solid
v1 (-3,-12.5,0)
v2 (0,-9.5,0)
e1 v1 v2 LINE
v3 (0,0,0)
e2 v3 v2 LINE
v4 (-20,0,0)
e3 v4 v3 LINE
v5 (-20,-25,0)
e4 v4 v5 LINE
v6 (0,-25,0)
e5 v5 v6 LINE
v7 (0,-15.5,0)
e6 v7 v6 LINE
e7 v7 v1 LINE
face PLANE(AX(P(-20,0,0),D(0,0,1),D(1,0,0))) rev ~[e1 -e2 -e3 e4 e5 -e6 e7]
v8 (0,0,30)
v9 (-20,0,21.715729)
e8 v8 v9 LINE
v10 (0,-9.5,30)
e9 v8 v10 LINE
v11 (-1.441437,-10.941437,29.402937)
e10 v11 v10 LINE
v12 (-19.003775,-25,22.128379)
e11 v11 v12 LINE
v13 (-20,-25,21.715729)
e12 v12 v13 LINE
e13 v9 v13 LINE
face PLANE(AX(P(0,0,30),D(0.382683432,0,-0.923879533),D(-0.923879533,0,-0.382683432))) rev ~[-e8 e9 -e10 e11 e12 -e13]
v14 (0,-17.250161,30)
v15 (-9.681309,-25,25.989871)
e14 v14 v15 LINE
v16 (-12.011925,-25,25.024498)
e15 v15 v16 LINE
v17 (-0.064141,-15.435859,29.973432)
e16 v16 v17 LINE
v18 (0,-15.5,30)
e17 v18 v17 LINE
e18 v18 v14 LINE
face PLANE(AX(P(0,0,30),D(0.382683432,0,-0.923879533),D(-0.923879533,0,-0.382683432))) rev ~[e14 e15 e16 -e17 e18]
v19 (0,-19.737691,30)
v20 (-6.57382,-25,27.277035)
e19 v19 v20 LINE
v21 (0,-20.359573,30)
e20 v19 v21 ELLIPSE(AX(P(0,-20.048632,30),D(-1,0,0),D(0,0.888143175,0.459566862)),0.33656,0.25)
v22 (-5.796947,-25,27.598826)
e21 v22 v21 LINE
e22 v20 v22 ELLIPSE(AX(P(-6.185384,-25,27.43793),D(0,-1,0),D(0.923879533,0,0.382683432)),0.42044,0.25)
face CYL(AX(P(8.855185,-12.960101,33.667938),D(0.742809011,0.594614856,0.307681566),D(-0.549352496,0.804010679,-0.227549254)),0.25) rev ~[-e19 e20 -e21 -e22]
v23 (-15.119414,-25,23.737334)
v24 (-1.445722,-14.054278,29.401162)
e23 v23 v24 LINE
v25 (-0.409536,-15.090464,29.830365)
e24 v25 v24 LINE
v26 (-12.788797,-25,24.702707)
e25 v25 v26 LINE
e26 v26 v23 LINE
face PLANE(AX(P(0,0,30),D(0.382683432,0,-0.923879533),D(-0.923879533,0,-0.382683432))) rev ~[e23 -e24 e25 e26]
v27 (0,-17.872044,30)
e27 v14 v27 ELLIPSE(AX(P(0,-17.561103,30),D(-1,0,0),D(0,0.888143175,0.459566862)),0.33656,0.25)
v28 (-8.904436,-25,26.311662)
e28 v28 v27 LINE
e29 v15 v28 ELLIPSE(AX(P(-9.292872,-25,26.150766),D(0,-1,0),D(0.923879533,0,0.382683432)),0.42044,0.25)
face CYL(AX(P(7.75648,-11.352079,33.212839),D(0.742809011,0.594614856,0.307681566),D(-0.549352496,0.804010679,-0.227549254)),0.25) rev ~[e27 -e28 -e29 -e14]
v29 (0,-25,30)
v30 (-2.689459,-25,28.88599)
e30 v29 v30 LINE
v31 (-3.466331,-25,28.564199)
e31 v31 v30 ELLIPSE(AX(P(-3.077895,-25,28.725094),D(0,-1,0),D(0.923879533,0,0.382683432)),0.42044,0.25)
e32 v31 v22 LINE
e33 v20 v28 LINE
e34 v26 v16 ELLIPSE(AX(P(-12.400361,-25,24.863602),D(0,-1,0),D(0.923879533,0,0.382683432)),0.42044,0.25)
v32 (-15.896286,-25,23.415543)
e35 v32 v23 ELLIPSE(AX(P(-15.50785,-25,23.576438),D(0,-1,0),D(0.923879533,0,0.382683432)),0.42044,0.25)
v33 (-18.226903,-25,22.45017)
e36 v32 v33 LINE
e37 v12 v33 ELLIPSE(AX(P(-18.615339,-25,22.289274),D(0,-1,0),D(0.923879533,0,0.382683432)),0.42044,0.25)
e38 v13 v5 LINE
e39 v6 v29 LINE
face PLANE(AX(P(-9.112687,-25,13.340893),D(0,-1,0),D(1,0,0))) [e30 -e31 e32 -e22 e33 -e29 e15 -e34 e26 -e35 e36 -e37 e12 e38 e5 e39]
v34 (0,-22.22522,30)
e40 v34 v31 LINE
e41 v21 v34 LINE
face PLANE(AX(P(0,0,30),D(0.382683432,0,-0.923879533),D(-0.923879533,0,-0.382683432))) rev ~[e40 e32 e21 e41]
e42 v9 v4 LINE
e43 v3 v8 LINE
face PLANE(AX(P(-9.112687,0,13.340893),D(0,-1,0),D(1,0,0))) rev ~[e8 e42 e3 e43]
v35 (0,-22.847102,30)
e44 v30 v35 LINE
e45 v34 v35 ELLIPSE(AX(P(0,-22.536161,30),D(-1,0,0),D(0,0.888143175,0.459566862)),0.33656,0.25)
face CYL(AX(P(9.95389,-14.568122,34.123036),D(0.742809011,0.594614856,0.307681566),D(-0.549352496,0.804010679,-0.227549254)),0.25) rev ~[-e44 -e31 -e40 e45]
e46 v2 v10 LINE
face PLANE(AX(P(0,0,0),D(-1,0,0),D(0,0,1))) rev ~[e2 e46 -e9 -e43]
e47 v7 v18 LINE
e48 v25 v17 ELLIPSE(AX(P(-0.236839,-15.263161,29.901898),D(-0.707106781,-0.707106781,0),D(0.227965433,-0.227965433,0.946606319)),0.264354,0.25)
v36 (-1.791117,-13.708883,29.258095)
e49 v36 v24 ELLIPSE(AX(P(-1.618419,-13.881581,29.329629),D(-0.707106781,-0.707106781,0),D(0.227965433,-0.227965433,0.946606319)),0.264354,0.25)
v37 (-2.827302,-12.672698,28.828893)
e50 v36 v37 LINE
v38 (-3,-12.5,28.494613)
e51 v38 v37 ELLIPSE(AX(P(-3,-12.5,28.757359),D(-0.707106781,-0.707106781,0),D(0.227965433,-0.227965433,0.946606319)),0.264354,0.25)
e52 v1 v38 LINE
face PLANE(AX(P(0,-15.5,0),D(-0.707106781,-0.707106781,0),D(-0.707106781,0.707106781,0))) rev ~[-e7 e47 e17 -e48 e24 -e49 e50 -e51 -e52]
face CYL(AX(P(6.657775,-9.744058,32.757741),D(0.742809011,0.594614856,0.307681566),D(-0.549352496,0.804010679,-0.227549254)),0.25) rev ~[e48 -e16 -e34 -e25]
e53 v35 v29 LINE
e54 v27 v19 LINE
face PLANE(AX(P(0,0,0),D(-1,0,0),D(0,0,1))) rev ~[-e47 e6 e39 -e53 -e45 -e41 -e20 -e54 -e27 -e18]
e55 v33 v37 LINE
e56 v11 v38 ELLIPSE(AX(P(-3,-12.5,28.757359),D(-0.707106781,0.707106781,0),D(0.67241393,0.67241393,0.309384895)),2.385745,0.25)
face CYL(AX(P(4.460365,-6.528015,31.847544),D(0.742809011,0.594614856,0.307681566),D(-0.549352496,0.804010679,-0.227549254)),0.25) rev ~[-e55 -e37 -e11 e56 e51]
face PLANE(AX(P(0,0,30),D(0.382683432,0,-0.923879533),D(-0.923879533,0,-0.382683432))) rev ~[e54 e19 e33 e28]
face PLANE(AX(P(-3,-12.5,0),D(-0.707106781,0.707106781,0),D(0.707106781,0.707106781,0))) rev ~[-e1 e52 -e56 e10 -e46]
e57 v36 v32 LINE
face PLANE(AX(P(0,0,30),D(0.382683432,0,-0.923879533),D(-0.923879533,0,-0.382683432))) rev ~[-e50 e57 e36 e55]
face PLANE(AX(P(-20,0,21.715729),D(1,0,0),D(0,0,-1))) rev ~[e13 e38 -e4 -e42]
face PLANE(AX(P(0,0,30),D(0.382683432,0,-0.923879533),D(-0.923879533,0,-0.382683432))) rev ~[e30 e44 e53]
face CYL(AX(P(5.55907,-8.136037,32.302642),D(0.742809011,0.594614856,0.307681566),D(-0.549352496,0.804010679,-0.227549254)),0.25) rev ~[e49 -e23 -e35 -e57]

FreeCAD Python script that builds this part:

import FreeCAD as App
import Part
import Sketcher
Q = App.Units.Quantity


def add_polygon(sketch, points):
    """Adds a closed chain of lines whose ends are joined by coincident constraints."""
    first, n = sketch.GeometryCount, len(points)
    for a, b in zip(points, points[1:] + points[:1]):
        sketch.addGeometry(Part.LineSegment(App.Vector(*a, 0), App.Vector(*b, 0)), False)
    for i in range(n):
        sketch.addConstraint(Sketcher.Constraint("Coincident", first + i, 2, first + (i + 1) % n, 1))

doc = App.newDocument("Part")
body = doc.addObject("PartDesign::Body", "Body")

# Sketch on XZ plane
sketch1 = body.newObject("Sketcher::SketchObject", "Sketch")
sketch1.AttachmentSupport = (doc.getObject("XZ_Plane"), [""])
sketch1.MapMode = "FlatFace"
add_polygon(sketch1, [(-20, 0), (0, 0), (0, 30), (-20, 22)])  # lines 0-3
sketch1.addConstraint([
    Sketcher.Constraint("Horizontal", 0),
    Sketcher.Constraint("Vertical", 1),
    Sketcher.Constraint("Vertical", 3),
    Sketcher.Constraint("Coincident", 0, 2, -1, 1),
    Sketcher.Constraint("DistanceX", 0, 1, 0, 2, 20.0),
    Sketcher.Constraint("DistanceY", 1, 1, 1, 2, 30.0),
    Sketcher.Constraint("Angle", 2, Q("-157.5 deg")),
])
pad1 = body.newObject("PartDesign::Pad", "Pad")
pad1.Profile = sketch1
pad1.Length = 25

# Sketch on XY plane
sketch2 = body.newObject("Sketcher::SketchObject", "Sketch001")
sketch2.AttachmentSupport = (doc.getObject("XY_Plane"), [""])
sketch2.MapMode = "FlatFace"
add_polygon(sketch2, [(0, -9.5), (0, -15.5), (-3, -12.5)])  # lines 0-2
sketch2.addConstraint([
    Sketcher.Constraint("Vertical", 0),
    Sketcher.Constraint("PointOnObject", 0, 2, -2),
    Sketcher.Constraint("Perpendicular", 1, 2),
    Sketcher.Constraint("Equal", 1, 2),
    Sketcher.Constraint("DistanceY", 0, 2, 0, 1, 6.0),
    Sketcher.Constraint("DistanceY", 0, 2, -1, 1, 15.5),
])
pocket1 = body.newObject("PartDesign::Pocket", "Pocket")
pocket1.Profile = sketch2
pocket1.Type = "ThroughAll"
pocket1.Reversed = True

# Sketch on an angled plane
sketch3 = body.newObject("Sketcher::SketchObject", "Sketch002")
sketch3.Placement = App.Placement(App.Vector(6.856459, 5.488561, 2.840038), App.Rotation(App.Vector(-0.549352496, 0.804010679, -0.227549254), App.Vector(-0.382683432, 0, 0.923879533), App.Vector(0.742809011, 0.594614856, 0.307681566), "ZXY"))
sketch3.addGeometry([
    Part.Circle(App.Vector(-14.95, 27.72, 0), App.Vector(0, 0, 1), 0.25),  # 0
    Part.Circle(App.Vector(-16.95, 27.72, 0), App.Vector(0, 0, 1), 0.25),  # 1
    Part.Circle(App.Vector(-18.95, 27.72, 0), App.Vector(0, 0, 1), 0.25),  # 2
    Part.Circle(App.Vector(-20.95, 27.72, 0), App.Vector(0, 0, 1), 0.25),  # 3
    Part.Circle(App.Vector(-22.95, 27.72, 0), App.Vector(0, 0, 1), 0.25),  # 4
    Part.Circle(App.Vector(-24.95, 27.72, 0), App.Vector(0, 0, 1), 0.25),  # 5
], False)
sketch3.addConstraint([
    Sketcher.Constraint("Equal", 0, 1),
    Sketcher.Constraint("Equal", 1, 2),
    Sketcher.Constraint("Equal", 2, 3),
    Sketcher.Constraint("Equal", 3, 4),
    Sketcher.Constraint("Equal", 4, 5),
    Sketcher.Constraint("Horizontal", 0, 3, 1, 3),
    Sketcher.Constraint("Horizontal", 1, 3, 2, 3),
    Sketcher.Constraint("Horizontal", 2, 3, 3, 3),
    Sketcher.Constraint("Horizontal", 3, 3, 4, 3),
    Sketcher.Constraint("Horizontal", 4, 3, 5, 3),
    Sketcher.Constraint("Diameter", 0, 0.5),
    Sketcher.Constraint("DistanceX", 1, 3, 0, 3, 2.0),
    Sketcher.Constraint("DistanceX", 2, 3, 1, 3, 2.0),
    Sketcher.Constraint("DistanceX", 3, 3, 2, 3, 2.0),
    Sketcher.Constraint("DistanceX", 4, 3, 3, 3, 2.0),
    Sketcher.Constraint("DistanceX", 5, 3, 4, 3, 2.0),
    Sketcher.Constraint("DistanceX", 0, 3, -1, 1, 14.945792),
    Sketcher.Constraint("DistanceY", -1, 1, 0, 3, 27.716386),
])
pocket2 = body.newObject("PartDesign::Pocket", "Pocket001")
pocket2.Profile = sketch3
pocket2.Type = "ThroughAll"

doc.recompute()
